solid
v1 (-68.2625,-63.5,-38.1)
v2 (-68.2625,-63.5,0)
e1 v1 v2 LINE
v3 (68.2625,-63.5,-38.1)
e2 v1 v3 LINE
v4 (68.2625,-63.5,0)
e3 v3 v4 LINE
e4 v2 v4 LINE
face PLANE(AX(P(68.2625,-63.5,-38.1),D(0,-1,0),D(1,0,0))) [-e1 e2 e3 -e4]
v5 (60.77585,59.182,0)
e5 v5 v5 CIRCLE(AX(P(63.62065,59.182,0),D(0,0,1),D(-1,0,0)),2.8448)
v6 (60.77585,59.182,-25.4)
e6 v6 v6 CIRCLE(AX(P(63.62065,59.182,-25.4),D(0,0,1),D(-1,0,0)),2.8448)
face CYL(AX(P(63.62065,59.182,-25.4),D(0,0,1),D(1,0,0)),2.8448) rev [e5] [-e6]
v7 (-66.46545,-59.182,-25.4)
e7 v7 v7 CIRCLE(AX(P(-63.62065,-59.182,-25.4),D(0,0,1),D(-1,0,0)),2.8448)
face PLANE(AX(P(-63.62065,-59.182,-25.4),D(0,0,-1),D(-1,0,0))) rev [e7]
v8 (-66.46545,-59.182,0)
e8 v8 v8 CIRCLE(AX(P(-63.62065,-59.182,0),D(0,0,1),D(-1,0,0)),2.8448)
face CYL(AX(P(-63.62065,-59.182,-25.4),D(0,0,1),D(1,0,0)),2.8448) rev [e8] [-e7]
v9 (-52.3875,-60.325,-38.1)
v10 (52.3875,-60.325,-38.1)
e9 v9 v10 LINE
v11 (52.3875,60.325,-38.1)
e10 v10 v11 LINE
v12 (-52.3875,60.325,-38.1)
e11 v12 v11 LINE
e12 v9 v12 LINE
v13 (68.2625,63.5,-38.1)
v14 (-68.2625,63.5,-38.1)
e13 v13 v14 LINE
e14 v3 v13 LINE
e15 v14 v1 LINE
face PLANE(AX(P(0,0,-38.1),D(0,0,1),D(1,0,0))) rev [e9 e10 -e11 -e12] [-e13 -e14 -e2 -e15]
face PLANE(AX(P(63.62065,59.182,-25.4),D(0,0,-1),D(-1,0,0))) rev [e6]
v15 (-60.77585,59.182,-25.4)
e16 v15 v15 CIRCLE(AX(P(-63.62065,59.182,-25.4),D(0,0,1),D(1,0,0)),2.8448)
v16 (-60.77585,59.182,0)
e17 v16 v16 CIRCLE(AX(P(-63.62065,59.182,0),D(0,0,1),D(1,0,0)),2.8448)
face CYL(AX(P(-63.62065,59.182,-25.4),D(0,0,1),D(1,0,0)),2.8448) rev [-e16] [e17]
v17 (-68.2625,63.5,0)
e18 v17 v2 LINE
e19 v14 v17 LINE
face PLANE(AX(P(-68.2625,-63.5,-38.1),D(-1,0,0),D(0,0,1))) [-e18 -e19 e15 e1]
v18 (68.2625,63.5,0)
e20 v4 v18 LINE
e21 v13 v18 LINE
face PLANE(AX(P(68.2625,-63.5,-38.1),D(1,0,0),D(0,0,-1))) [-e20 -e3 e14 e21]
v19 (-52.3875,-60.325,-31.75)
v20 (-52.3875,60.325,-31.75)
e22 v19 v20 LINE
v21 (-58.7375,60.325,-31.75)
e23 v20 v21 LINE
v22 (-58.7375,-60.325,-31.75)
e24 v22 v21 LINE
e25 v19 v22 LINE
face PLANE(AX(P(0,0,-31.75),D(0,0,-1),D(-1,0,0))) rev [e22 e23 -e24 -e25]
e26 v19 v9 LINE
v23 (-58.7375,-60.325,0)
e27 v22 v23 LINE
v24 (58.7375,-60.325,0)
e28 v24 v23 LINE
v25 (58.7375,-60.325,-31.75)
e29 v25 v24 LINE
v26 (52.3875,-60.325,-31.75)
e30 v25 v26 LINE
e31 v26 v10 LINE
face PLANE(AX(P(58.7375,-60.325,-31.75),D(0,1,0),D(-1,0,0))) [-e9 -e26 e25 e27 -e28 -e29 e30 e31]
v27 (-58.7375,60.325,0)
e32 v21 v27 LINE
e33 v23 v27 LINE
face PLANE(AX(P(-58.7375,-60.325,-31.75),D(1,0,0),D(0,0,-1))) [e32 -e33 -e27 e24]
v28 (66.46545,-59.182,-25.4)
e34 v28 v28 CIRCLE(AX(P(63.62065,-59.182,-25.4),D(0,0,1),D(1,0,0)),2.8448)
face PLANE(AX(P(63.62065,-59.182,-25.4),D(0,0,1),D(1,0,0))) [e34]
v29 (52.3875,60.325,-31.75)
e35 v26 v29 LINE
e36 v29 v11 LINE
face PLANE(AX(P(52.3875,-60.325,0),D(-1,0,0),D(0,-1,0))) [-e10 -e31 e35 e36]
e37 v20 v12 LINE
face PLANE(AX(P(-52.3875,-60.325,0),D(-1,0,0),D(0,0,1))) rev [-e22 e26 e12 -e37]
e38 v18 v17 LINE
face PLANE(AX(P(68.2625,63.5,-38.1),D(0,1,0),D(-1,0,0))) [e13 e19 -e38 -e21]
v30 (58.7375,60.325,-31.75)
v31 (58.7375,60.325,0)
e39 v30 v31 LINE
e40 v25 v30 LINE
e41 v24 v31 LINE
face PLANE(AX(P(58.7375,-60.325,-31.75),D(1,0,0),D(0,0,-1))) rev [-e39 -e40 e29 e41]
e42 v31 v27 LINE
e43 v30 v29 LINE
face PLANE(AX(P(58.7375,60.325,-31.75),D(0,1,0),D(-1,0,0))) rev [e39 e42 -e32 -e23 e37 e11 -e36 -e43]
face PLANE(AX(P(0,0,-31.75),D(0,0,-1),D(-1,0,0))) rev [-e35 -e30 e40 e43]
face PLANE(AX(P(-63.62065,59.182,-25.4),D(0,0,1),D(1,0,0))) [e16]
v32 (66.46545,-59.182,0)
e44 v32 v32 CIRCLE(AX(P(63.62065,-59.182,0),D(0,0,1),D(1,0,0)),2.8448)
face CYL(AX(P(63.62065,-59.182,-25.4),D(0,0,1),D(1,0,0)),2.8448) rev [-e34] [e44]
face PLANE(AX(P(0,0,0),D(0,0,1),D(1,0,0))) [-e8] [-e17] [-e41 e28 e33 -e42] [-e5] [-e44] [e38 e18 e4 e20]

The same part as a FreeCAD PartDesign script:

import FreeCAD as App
import Part
import Sketcher
from FreeCAD import Vector
Q = App.Units.Quantity


def add_polygon(sketch, points):
    """Adds a closed chain of lines whose ends are joined by coincident constraints."""
    first, n = sketch.GeometryCount, len(points)
    for a, b in zip(points, points[1:] + points[:1]):
        sketch.addGeometry(Part.LineSegment(App.Vector(*a, 0), App.Vector(*b, 0)), False)
    for i in range(n):
        sketch.addConstraint(Sketcher.Constraint("Coincident", first + i, 2, first + (i + 1) % n, 1))

doc = App.newDocument("Part")
body = doc.addObject("PartDesign::Body", "Body")

# Sketch on XY plane
sketch1 = body.newObject("Sketcher::SketchObject", "Sketch")
sketch1.AttachmentSupport = (doc.getObject("XY_Plane"), [""])
sketch1.MapMode = "FlatFace"
add_polygon(sketch1, [(-68, 64), (-68, -64), (68, -64), (68, 64)])  # lines 0-3
sketch1.addConstraint([
    Sketcher.Constraint("Vertical", 0),
    Sketcher.Constraint("Horizontal", 1),
    Sketcher.Constraint("Vertical", 2),
    Sketcher.Constraint("Horizontal", 3),
    Sketcher.Constraint("Symmetric", 0, 2, 2, 2, -1, 1),
    Sketcher.Constraint("DistanceY", 0, 2, 0, 1, Q("5 in")),
    Sketcher.Constraint("DistanceX", 1, 1, 1, 2, Q("5.375 in")),
])
pad1 = body.newObject("PartDesign::Pad", "Pad")
pad1.Profile = sketch1
pad1.Length = Q("1.5 in")
pad1.Reversed = True

# Sketch on XY plane
sketch2 = body.newObject("Sketcher::SketchObject", "Sketch001")
sketch2.AttachmentSupport = (doc.getObject("XY_Plane"), [""])
sketch2.MapMode = "FlatFace"
add_polygon(sketch2, [(-59, 60), (-59, -60), (59, -60), (59, 60)])  # lines 0-3
sketch2.addConstraint([
    Sketcher.Constraint("Vertical", 0),
    Sketcher.Constraint("Horizontal", 1),
    Sketcher.Constraint("Vertical", 2),
    Sketcher.Constraint("Horizontal", 3),
    Sketcher.Constraint("Symmetric", 0, 2, 2, 2, -1, 1),
    Sketcher.Constraint("DistanceY", 0, 2, 0, 1, Q("4.75 in")),
    Sketcher.Constraint("DistanceX", 1, 1, 1, 2, Q("4.625 in")),
])
pocket1 = body.newObject("PartDesign::Pocket", "Pocket")
pocket1.Profile = sketch2
pocket1.Length = Q("1.25 in")

# Sketch on XY plane
sketch3 = body.newObject("Sketcher::SketchObject", "Sketch002")
sketch3.AttachmentSupport = (doc.getObject("XY_Plane"), [""])
sketch3.MapMode = "FlatFace"
sketch3.AttachmentOffset = App.Placement(Vector(0, 0, -1.5 * 25.4), App.Rotation())
add_polygon(sketch3, [(52, 60), (52, -60), (-52, -60), (-52, 60)])  # lines 0-3
sketch3.addConstraint([
    Sketcher.Constraint("Vertical", 0),
    Sketcher.Constraint("Horizontal", 1),
    Sketcher.Constraint("Vertical", 2),
    Sketcher.Constraint("Horizontal", 3),
    Sketcher.Constraint("Symmetric", 0, 2, 2, 2, -1, 1),
    Sketcher.Constraint("DistanceY", 0, 2, 0, 1, Q("4.75 in")),
    Sketcher.Constraint("DistanceX", 1, 2, 1, 1, Q("4.125 in")),
])
pocket2 = body.newObject("PartDesign::Pocket", "Pocket001")
pocket2.Profile = sketch3
pocket2.Length = Q("1.5 in")
pocket2.Reversed = True

# Sketch on XY plane
sketch4 = body.newObject("Sketcher::SketchObject", "Sketch003")
sketch4.AttachmentSupport = (doc.getObject("XY_Plane"), [""])
sketch4.MapMode = "FlatFace"
sketch4.addGeometry([
    Part.Circle(Vector(-63.6, 59.2, 0), Vector(0, 0, 1), 2.8),
    Part.Circle(Vector(63.6, 59.2, 0), Vector(0, 0, 1), 2.8),
    Part.Circle(Vector(63.6, -59.2, 0), Vector(0, 0, 1), 2.8),
    Part.Circle(Vector(-63.6, -59.2, 0), Vector(0, 0, 1), 2.8),
], False)
sketch4.addConstraint([
    Sketcher.Constraint("Equal", 0, 1),
    Sketcher.Constraint("Equal", 1, 2),
    Sketcher.Constraint("Equal", 2, 3),
    Sketcher.Constraint("Symmetric", 0, 3, 2, 3, -1, 1),
    Sketcher.Constraint("Symmetric", 1, 3, 3, 3, -1, 1),
    Sketcher.Constraint("Symmetric", 0, 3, 1, 3, -2),
    Sketcher.Constraint("Diameter", 0, Q("0.224 in")),
    Sketcher.Constraint("DistanceY", -1, 1, 0, 3, Q("2.33 in")),
    Sketcher.Constraint("DistanceX", 0, 3, 1, 3, Q("5.0095 in")),
])
pocket3 = body.newObject("PartDesign::Pocket", "Pocket002")
pocket3.Profile = sketch4
pocket3.Length = Q("1 in")

doc.recompute()
